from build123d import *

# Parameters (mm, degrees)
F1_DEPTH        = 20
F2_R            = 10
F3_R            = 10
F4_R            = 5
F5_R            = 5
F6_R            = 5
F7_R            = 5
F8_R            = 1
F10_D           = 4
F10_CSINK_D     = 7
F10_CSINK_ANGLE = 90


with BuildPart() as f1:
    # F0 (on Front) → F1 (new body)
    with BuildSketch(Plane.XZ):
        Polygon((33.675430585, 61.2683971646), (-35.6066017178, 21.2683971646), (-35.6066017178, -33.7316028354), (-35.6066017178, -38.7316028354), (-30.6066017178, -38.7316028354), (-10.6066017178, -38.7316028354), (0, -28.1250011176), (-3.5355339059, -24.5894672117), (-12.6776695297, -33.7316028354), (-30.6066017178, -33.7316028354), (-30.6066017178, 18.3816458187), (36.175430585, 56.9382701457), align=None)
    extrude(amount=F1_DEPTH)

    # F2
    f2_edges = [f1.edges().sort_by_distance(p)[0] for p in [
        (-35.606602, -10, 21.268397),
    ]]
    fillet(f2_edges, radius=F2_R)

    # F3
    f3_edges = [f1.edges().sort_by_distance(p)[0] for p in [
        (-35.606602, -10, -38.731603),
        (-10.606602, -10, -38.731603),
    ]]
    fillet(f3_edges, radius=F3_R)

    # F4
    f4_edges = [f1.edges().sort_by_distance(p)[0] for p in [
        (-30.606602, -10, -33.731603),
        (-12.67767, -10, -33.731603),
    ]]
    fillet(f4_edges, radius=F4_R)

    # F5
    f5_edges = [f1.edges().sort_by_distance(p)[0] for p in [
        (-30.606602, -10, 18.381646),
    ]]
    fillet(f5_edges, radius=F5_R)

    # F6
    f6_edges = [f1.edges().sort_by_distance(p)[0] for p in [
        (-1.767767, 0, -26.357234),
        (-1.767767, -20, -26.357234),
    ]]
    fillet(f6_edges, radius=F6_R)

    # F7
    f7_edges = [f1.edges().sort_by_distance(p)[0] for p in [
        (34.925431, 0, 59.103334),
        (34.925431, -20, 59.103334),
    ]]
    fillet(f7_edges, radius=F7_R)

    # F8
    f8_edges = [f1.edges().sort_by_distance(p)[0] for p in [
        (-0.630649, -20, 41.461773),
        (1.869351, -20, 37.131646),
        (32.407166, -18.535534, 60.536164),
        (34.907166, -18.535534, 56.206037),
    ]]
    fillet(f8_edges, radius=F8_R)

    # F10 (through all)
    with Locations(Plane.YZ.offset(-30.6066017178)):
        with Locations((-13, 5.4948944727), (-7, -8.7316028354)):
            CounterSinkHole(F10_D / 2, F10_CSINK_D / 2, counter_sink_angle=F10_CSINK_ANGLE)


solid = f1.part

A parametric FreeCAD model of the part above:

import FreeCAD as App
import Part
import Sketcher
from FreeCAD import Vector
Q = App.Units.Quantity


def edges_at(feature, points):
    """Names of the edges that pass closest to the given points."""
    edges = feature.Shape.Edges
    near = lambda p: min(range(len(edges)), key=lambda i: edges[i].distToShape(Part.Vertex(*p))[0])
    return sorted({f"Edge{near(p) + 1}" for p in points})

doc = App.newDocument("Part")
body = doc.addObject("PartDesign::Body", "Body")

# Sketch on XZ plane
sketch1 = body.newObject("Sketcher::SketchObject", "Sketch")
sketch1.AttachmentSupport = (doc.getObject("XZ_Plane"), [""])
sketch1.MapMode = "FlatFace"
sketch1.addGeometry([
    Part.LineSegment(Vector(34, 61, 0), Vector(-36, 21, 0)),  # 0
    Part.LineSegment(Vector(-36, 21, 0), Vector(-36, -39, 0)),  # 1
    Part.LineSegment(Vector(-36, -39, 0), Vector(-11, -39, 0)),  # 2
    Part.LineSegment(Vector(-11, -39, 0), Vector(0, -28, 0)),  # 3
    Part.LineSegment(Vector(0, -28, 0), Vector(-4, -25, 0)),  # 4
    Part.LineSegment(Vector(-4, -25, 0), Vector(-13, -34, 0)),  # 5
    Part.LineSegment(Vector(-13, -34, 0), Vector(-31, -34, 0)),  # 6
    Part.LineSegment(Vector(-31, -34, 0), Vector(-31, 18, 0)),  # 7
    Part.LineSegment(Vector(-31, 18, 0), Vector(36, 57, 0)),  # 8
    Part.LineSegment(Vector(36, 57, 0), Vector(34, 61, 0)),  # 9
], False)
sketch1.addConstraint([
    Sketcher.Constraint("Coincident", 0, 2, 1, 1),
    Sketcher.Constraint("Coincident", 1, 2, 2, 1),
    Sketcher.Constraint("Coincident", 2, 2, 3, 1),
    Sketcher.Constraint("Coincident", 3, 2, 4, 1),
    Sketcher.Constraint("Coincident", 4, 2, 5, 1),
    Sketcher.Constraint("Coincident", 5, 2, 6, 1),
    Sketcher.Constraint("Coincident", 6, 2, 7, 1),
    Sketcher.Constraint("Coincident", 7, 2, 8, 1),
    Sketcher.Constraint("Coincident", 8, 2, 9, 1),
    Sketcher.Constraint("Coincident", 9, 2, 0, 1),
    Sketcher.Constraint("Vertical", 1),
    Sketcher.Constraint("Horizontal", 2),
    Sketcher.Constraint("Horizontal", 6),
    Sketcher.Constraint("Vertical", 7),
    Sketcher.Constraint("PointOnObject", 3, 2, -2),
    Sketcher.Constraint("Perpendicular", 3, 4),
    Sketcher.Constraint("Perpendicular", 4, 5),
    Sketcher.Constraint("Parallel", 0, 8),
    Sketcher.Constraint("Perpendicular", 8, 9),
    Sketcher.Constraint("Equal", 4, 9),
    Sketcher.Constraint("DistanceX", 2, 1, 2, 2, 25.0),
    Sketcher.Constraint("DistanceY", 1, 2, 1, 1, 60.0),
    Sketcher.Constraint("Angle", 0, Q("-150 deg")),
    Sketcher.Constraint("Angle", 3, Q("45 deg")),
    Sketcher.Constraint("Distance", 0, 80.0),
    Sketcher.Constraint("Distance", 3, 15.0),
    Sketcher.Constraint("Distance", 4, 5.0),
    Sketcher.Constraint("DistanceY", 2, 2, 5, 2, 5.0),
    Sketcher.Constraint("DistanceX", 1, 2, 6, 2, 5.0),
    Sketcher.Constraint("DistanceY", 3, 2, -1, 1, 28.125001),
])
pad1 = body.newObject("PartDesign::Pad", "Pad")
pad1.Profile = sketch1
pad1.Length = 20
doc.recompute()

fillet = body.newObject("PartDesign::Fillet", "Fillet")
fillet.Base = (pad1, edges_at(pad1, [(-35.607, -10, 21.268)]))
fillet.Radius = 10
doc.recompute()

fillet2 = body.newObject("PartDesign::Fillet", "Fillet001")
fillet2.Base = (fillet, edges_at(fillet, [(-35.607, -10, -38.732), (-10.607, -10, -38.732)]))
fillet2.Radius = 10
doc.recompute()

fillet3 = body.newObject("PartDesign::Fillet", "Fillet002")
fillet3.Base = (fillet2, edges_at(fillet2, [(-30.607, -10, -33.732), (-12.678, -10, -33.732)]))
fillet3.Radius = 5
doc.recompute()

fillet4 = body.newObject("PartDesign::Fillet", "Fillet003")
fillet4.Base = (fillet3, edges_at(fillet3, [(-30.607, -10, 18.382)]))
fillet4.Radius = 5
doc.recompute()

fillet5 = body.newObject("PartDesign::Fillet", "Fillet004")
fillet5.Base = (fillet4, edges_at(fillet4, [(-1.768, 0, -26.357), (-1.768, -20, -26.357)]))
fillet5.Radius = 5
doc.recompute()

fillet6 = body.newObject("PartDesign::Fillet", "Fillet005")
fillet6.Base = (fillet5, edges_at(fillet5, [(34.925, 0, 59.103), (34.925, -20, 59.103)]))
fillet6.Radius = 5
doc.recompute()

fillet7 = body.newObject("PartDesign::Fillet", "Fillet006")
fillet7.Base = (fillet6, edges_at(fillet6, [
    (-0.631, -20, 41.462),
    (1.869, -20, 37.132),
    (32.407, -18.536, 60.536),
    (34.907, -18.536, 56.206),
]))
fillet7.Radius = 1

# Sketch on YZ plane
sketch2 = body.newObject("Sketcher::SketchObject", "Sketch001")
sketch2.AttachmentSupport = (doc.getObject("YZ_Plane"), [""])
sketch2.MapMode = "FlatFace"
sketch2.AttachmentOffset = App.Placement(Vector(0, 0, -30.606602), App.Rotation())
sketch2.addGeometry([
    Part.Circle(Vector(-13, 5.5, 0), Vector(0, 0, 1), 2),
    Part.Circle(Vector(-7, -8.7, 0), Vector(0, 0, 1), 2),
], False)
sketch2.addConstraint([
    Sketcher.Constraint("Equal", 0, 1),
    Sketcher.Constraint("Diameter", 0, 4.0),
    Sketcher.Constraint("DistanceX", 0, 3, -1, 1, 13.0),
    Sketcher.Constraint("DistanceX", 1, 3, -1, 1, 7.0),
    Sketcher.Constraint("DistanceY", -1, 1, 0, 3, 5.494894),
    Sketcher.Constraint("DistanceY", 1, 3, -1, 1, 8.731603),
])
doc.recompute()
hole = body.newObject("PartDesign::Hole", "Hole")
hole.Profile = sketch2
hole.ThreadType = "None"
hole.Diameter = 4
hole.DepthType = "ThroughAll"
hole.HoleCutType = "Countersink"
hole.HoleCutDiameter = 7
hole.HoleCutCountersinkAngle = 90

doc.recompute()
